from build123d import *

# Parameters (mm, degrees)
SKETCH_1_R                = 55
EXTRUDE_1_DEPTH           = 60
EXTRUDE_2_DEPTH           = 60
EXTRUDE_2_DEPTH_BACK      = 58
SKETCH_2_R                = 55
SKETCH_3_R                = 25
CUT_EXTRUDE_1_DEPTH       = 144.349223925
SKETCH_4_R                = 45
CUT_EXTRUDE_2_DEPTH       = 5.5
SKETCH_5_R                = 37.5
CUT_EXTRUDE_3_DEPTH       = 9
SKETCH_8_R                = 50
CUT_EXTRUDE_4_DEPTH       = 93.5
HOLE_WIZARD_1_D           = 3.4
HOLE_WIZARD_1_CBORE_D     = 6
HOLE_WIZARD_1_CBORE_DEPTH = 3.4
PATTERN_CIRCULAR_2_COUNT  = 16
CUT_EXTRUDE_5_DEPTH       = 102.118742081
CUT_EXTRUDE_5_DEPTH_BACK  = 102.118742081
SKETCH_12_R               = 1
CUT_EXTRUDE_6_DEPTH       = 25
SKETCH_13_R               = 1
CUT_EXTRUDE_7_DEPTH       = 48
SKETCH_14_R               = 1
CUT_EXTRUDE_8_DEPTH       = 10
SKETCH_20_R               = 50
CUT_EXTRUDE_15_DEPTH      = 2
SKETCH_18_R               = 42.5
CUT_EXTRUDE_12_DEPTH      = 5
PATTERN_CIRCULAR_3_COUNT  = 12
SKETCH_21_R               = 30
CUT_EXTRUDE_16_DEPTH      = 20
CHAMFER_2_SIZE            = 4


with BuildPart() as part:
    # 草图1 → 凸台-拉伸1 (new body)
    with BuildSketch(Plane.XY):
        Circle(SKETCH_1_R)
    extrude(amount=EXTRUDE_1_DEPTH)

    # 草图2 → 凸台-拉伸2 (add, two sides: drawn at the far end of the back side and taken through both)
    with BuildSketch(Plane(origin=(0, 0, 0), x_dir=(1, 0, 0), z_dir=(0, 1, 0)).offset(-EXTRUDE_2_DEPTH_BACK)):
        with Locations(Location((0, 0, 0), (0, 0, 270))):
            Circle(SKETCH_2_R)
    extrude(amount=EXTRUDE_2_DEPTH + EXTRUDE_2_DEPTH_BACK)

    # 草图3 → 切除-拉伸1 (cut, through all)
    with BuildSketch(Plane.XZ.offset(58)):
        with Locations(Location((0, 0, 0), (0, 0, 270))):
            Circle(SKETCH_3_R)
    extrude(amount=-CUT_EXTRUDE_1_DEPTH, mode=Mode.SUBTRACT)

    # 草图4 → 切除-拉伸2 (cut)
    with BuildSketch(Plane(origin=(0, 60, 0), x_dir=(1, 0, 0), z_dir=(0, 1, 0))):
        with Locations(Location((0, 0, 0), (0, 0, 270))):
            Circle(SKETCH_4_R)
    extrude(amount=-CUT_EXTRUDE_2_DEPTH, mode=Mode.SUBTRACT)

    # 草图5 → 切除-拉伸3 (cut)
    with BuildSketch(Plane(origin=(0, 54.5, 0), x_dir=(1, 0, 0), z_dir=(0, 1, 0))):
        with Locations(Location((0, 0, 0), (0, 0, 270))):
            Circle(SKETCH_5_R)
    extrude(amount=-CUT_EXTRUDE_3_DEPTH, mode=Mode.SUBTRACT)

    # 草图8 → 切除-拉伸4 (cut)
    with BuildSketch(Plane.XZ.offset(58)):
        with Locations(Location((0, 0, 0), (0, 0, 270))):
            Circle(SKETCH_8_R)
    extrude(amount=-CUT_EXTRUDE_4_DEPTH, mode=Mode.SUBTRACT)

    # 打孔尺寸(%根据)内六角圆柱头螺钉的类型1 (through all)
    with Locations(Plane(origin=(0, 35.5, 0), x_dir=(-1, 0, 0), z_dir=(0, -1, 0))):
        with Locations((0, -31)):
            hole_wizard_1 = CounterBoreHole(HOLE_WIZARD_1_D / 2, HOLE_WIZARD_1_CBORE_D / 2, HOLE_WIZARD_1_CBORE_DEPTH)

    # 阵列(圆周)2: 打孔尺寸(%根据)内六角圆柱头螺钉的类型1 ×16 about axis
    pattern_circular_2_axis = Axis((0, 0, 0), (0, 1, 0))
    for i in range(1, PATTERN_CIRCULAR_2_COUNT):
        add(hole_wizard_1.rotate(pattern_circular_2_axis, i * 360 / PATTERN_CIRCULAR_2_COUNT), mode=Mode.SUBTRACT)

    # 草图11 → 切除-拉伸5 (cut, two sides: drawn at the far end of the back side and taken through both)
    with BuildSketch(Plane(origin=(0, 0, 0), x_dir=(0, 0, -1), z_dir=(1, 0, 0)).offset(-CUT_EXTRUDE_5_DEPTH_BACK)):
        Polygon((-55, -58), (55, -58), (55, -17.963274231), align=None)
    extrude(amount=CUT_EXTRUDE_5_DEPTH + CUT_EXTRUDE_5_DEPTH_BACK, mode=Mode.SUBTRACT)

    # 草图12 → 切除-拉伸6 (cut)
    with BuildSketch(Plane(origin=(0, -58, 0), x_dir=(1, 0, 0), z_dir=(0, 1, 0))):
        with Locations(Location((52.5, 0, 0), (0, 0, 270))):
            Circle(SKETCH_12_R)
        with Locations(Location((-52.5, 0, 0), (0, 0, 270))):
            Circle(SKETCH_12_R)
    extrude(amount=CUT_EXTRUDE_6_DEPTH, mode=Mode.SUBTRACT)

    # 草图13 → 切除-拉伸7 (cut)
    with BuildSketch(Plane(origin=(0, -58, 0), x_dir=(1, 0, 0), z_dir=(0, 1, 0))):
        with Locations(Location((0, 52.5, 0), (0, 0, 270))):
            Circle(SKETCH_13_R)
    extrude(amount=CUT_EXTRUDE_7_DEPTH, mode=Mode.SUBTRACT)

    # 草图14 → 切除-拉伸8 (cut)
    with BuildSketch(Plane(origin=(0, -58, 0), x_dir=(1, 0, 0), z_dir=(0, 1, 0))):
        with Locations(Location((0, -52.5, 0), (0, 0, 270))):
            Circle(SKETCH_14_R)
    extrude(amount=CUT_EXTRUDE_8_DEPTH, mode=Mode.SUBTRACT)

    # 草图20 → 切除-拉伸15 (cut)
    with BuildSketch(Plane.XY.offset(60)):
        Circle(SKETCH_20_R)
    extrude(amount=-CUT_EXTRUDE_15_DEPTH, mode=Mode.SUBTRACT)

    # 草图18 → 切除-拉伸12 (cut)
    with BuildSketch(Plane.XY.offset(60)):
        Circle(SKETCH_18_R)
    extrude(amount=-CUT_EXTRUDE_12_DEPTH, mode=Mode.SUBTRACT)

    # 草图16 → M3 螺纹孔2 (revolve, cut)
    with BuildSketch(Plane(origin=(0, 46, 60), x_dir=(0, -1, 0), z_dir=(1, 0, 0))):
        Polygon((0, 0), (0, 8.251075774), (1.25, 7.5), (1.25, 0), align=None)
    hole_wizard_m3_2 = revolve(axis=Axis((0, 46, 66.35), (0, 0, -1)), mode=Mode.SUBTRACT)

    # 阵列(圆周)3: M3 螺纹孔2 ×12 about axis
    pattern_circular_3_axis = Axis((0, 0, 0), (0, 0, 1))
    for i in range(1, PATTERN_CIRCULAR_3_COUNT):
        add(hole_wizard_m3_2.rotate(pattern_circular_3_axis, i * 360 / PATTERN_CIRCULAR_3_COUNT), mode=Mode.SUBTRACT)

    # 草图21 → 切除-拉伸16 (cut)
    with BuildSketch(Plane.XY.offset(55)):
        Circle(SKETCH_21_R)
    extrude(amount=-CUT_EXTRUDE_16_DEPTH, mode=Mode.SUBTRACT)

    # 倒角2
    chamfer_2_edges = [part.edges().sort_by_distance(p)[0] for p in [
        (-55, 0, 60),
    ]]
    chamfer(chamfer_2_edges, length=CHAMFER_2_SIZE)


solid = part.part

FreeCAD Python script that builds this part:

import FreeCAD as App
import Part
import Sketcher

V = App.Vector
Q = App.Units.Quantity


def edges_at(feature, points):
    """Names of the edges that pass closest to the given points."""
    edges = feature.Shape.Edges
    near = lambda p: min(range(len(edges)), key=lambda i: edges[i].distToShape(Part.Vertex(*p))[0])
    return sorted({f"Edge{near(p) + 1}" for p in points})

doc = App.newDocument("Part")
body = doc.addObject("PartDesign::Body", "Body")

sketch1 = body.newObject("Sketcher::SketchObject", "Sketch")
sketch1.AttachmentSupport = (doc.getObject("XY_Plane"), [""])
sketch1.MapMode = "FlatFace"
sketch1.addGeometry(Part.Circle(V(0, 0, 0), V(0, 0, 1), 55), False)
sketch1.addConstraint(Sketcher.Constraint("Coincident", 0, 3, -1, 1))
sketch1.addConstraint(Sketcher.Constraint("Diameter", 0, Q("110 mm")))
pad1 = body.newObject("PartDesign::Pad", "Pad")
pad1.Profile = sketch1
pad1.Length = 60

sketch2 = body.newObject("Sketcher::SketchObject", "Sketch001")
sketch2.AttachmentSupport = (doc.getObject("XZ_Plane"), [""])
sketch2.MapMode = "FlatFace"
sketch2.addGeometry(Part.Circle(V(0, 0, 0), V(0, 0, 1), 55), False)
sketch2.addConstraint(Sketcher.Constraint("Coincident", 0, 3, -1, 1))
sketch2.addConstraint(Sketcher.Constraint("Diameter", 0, Q("110 mm")))
pad2 = body.newObject("PartDesign::Pad", "Pad001")
pad2.Profile = sketch2
pad2.Type = "TwoLengths"
pad2.Length = 60
pad2.Length2 = 58
pad2.Reversed = True

sketch3 = body.newObject("Sketcher::SketchObject", "Sketch002")
sketch3.AttachmentSupport = (doc.getObject("XZ_Plane"), [""])
sketch3.MapMode = "FlatFace"
sketch3.AttachmentOffset = App.Placement(V(0, 0, 58), App.Rotation())
sketch3.addGeometry(Part.Circle(V(0, 0, 0), V(0, 0, 1), 25), False)
sketch3.addConstraint(Sketcher.Constraint("Coincident", 0, 3, -1, 1))
sketch3.addConstraint(Sketcher.Constraint("Diameter", 0, Q("50 mm")))
pocket1 = body.newObject("PartDesign::Pocket", "Pocket")
pocket1.Profile = sketch3
pocket1.Type = "ThroughAll"

sketch4 = body.newObject("Sketcher::SketchObject", "Sketch003")
sketch4.AttachmentSupport = (doc.getObject("XZ_Plane"), [""])
sketch4.MapMode = "FlatFace"
sketch4.AttachmentOffset = App.Placement(V(0, 0, -60), App.Rotation())
sketch4.addGeometry(Part.Circle(V(0, 0, 0), V(0, 0, 1), 45), False)
sketch4.addConstraint(Sketcher.Constraint("Coincident", 0, 3, -1, 1))
sketch4.addConstraint(Sketcher.Constraint("Diameter", 0, Q("90 mm")))
pocket2 = body.newObject("PartDesign::Pocket", "Pocket001")
pocket2.Profile = sketch4
pocket2.Length = 5.5
pocket2.Reversed = True

sketch5 = body.newObject("Sketcher::SketchObject", "Sketch004")
sketch5.AttachmentSupport = (doc.getObject("XZ_Plane"), [""])
sketch5.MapMode = "FlatFace"
sketch5.AttachmentOffset = App.Placement(V(0, 0, -54.5), App.Rotation())
sketch5.addGeometry(Part.Circle(V(0, 0, 0), V(0, 0, 1), 38), False)
sketch5.addConstraint(Sketcher.Constraint("Coincident", 0, 3, -1, 1))
sketch5.addConstraint(Sketcher.Constraint("Diameter", 0, Q("75 mm")))
pocket3 = body.newObject("PartDesign::Pocket", "Pocket002")
pocket3.Profile = sketch5
pocket3.Length = 9
pocket3.Reversed = True

sketch6 = body.newObject("Sketcher::SketchObject", "Sketch005")
sketch6.AttachmentSupport = (doc.getObject("XZ_Plane"), [""])
sketch6.MapMode = "FlatFace"
sketch6.AttachmentOffset = App.Placement(V(0, 0, 58), App.Rotation())
sketch6.addGeometry(Part.Circle(V(0, 0, 0), V(0, 0, 1), 50), False)
sketch6.addConstraint(Sketcher.Constraint("Coincident", 0, 3, -1, 1))
sketch6.addConstraint(Sketcher.Constraint("Diameter", 0, Q("100 mm")))
pocket4 = body.newObject("PartDesign::Pocket", "Pocket003")
pocket4.Profile = sketch6
pocket4.Length = 93.5

sketch7 = body.newObject("Sketcher::SketchObject", "Sketch006")
sketch7.AttachmentSupport = (doc.getObject("XZ_Plane"), [""])
sketch7.MapMode = "FlatFace"
sketch7.AttachmentOffset = App.Placement(V(0, 0, -35.5), App.Rotation())
sketch7.addGeometry(Part.Circle(V(0, 31, 0), V(0, 0, 1), 1.7), False)
sketch7.addConstraint(Sketcher.Constraint("PointOnObject", 0, 3, -2))
sketch7.addConstraint(Sketcher.Constraint("Diameter", 0, Q("3.4 mm")))
sketch7.addConstraint(Sketcher.Constraint("DistanceY", -1, 1, 0, 3, Q("31 mm")))
doc.recompute()
hole = body.newObject("PartDesign::Hole", "Hole")
hole.Profile = sketch7
hole.ThreadType = "None"
hole.Diameter = 3.4
hole.DepthType = "ThroughAll"
hole.HoleCutType = "Counterbore"
hole.HoleCutDiameter = 6
hole.HoleCutDepth = 3.4
doc.recompute()

polarpattern = body.newObject("PartDesign::PolarPattern", "PolarPattern")
polarpattern.Originals = [hole]
polarpattern.Axis = (doc.getObject("Y_Axis"), [""])
polarpattern.Angle = 360
polarpattern.Occurrences = 16
body.Tip = polarpattern

sketch8 = body.newObject("Sketcher::SketchObject", "Sketch007")
sketch8.AttachmentSupport = (doc.getObject("YZ_Plane"), [""])
sketch8.MapMode = "FlatFace"
sketch8.addGeometry(Part.LineSegment(V(-58, 55, 0), V(-58, -55, 0)), False)
sketch8.addGeometry(Part.LineSegment(V(-58, -55, 0), V(-18, -55, 0)), False)
sketch8.addGeometry(Part.LineSegment(V(-18, -55, 0), V(-58, 55, 0)), False)
sketch8.addConstraint(Sketcher.Constraint("Coincident", 0, 2, 1, 1))
sketch8.addConstraint(Sketcher.Constraint("Coincident", 1, 2, 2, 1))
sketch8.addConstraint(Sketcher.Constraint("Coincident", 2, 2, 0, 1))
sketch8.addConstraint(Sketcher.Constraint("Vertical", 0))
sketch8.addConstraint(Sketcher.Constraint("Horizontal", 1))
sketch8.addConstraint(Sketcher.Constraint("DistanceY", 0, 2, 0, 1, Q("110 mm")))
sketch8.addConstraint(Sketcher.Constraint("Angle", 2, Q("110 deg")))
sketch8.addConstraint(Sketcher.Constraint("DistanceX", 0, 2, -1, 1, Q("58 mm")))
sketch8.addConstraint(Sketcher.Constraint("DistanceY", 0, 2, -1, 1, Q("55 mm")))
pocket5 = body.newObject("PartDesign::Pocket", "Pocket004")
pocket5.Profile = sketch8
pocket5.Type = "ThroughAll"
pocket5.Midplane = True

sketch9 = body.newObject("Sketcher::SketchObject", "Sketch008")
sketch9.AttachmentSupport = (doc.getObject("XZ_Plane"), [""])
sketch9.MapMode = "FlatFace"
sketch9.AttachmentOffset = App.Placement(V(0, 0, 58), App.Rotation())
sketch9.addGeometry(Part.Circle(V(52.5, 0, 0), V(0, 0, 1), 1), False)
sketch9.addGeometry(Part.Circle(V(-52.5, 0, 0), V(0, 0, 1), 1), False)
sketch9.addConstraint(Sketcher.Constraint("Equal", 0, 1))
sketch9.addConstraint(Sketcher.Constraint("Symmetric", 0, 3, 1, 3, -1, 1))
sketch9.addConstraint(Sketcher.Constraint("PointOnObject", 0, 3, -1))
sketch9.addConstraint(Sketcher.Constraint("Diameter", 0, Q("2 mm")))
sketch9.addConstraint(Sketcher.Constraint("DistanceX", 1, 3, 0, 3, Q("105 mm")))
pocket6 = body.newObject("PartDesign::Pocket", "Pocket005")
pocket6.Profile = sketch9
pocket6.Length = 25

sketch10 = body.newObject("Sketcher::SketchObject", "Sketch009")
sketch10.AttachmentSupport = (doc.getObject("XZ_Plane"), [""])
sketch10.MapMode = "FlatFace"
sketch10.AttachmentOffset = App.Placement(V(0, 0, 58), App.Rotation())
sketch10.addGeometry(Part.Circle(V(0, -52.5, 0), V(0, 0, 1), 1), False)
sketch10.addConstraint(Sketcher.Constraint("PointOnObject", 0, 3, -2))
sketch10.addConstraint(Sketcher.Constraint("Diameter", 0, Q("2 mm")))
sketch10.addConstraint(Sketcher.Constraint("DistanceY", 0, 3, -1, 1, Q("52.5 mm")))
pocket7 = body.newObject("PartDesign::Pocket", "Pocket006")
pocket7.Profile = sketch10
pocket7.Length = 48

sketch11 = body.newObject("Sketcher::SketchObject", "Sketch010")
sketch11.AttachmentSupport = (doc.getObject("XZ_Plane"), [""])
sketch11.MapMode = "FlatFace"
sketch11.AttachmentOffset = App.Placement(V(0, 0, 58), App.Rotation())
sketch11.addGeometry(Part.Circle(V(0, 52.5, 0), V(0, 0, 1), 1), False)
sketch11.addConstraint(Sketcher.Constraint("PointOnObject", 0, 3, -2))
sketch11.addConstraint(Sketcher.Constraint("Diameter", 0, Q("2 mm")))
sketch11.addConstraint(Sketcher.Constraint("DistanceY", -1, 1, 0, 3, Q("52.5 mm")))
pocket8 = body.newObject("PartDesign::Pocket", "Pocket007")
pocket8.Profile = sketch11
pocket8.Length = 10

sketch12 = body.newObject("Sketcher::SketchObject", "Sketch011")
sketch12.AttachmentSupport = (doc.getObject("XY_Plane"), [""])
sketch12.MapMode = "FlatFace"
sketch12.AttachmentOffset = App.Placement(V(0, 0, 60), App.Rotation())
sketch12.addGeometry(Part.Circle(V(0, 0, 0), V(0, 0, 1), 50), False)
sketch12.addConstraint(Sketcher.Constraint("Coincident", 0, 3, -1, 1))
sketch12.addConstraint(Sketcher.Constraint("Diameter", 0, Q("100 mm")))
pocket9 = body.newObject("PartDesign::Pocket", "Pocket008")
pocket9.Profile = sketch12
pocket9.Length = 2

sketch13 = body.newObject("Sketcher::SketchObject", "Sketch012")
sketch13.AttachmentSupport = (doc.getObject("XY_Plane"), [""])
sketch13.MapMode = "FlatFace"
sketch13.AttachmentOffset = App.Placement(V(0, 0, 60), App.Rotation())
sketch13.addGeometry(Part.Circle(V(0, 0, 0), V(0, 0, 1), 42), False)
sketch13.addConstraint(Sketcher.Constraint("Coincident", 0, 3, -1, 1))
sketch13.addConstraint(Sketcher.Constraint("Diameter", 0, Q("85 mm")))
pocket10 = body.newObject("PartDesign::Pocket", "Pocket009")
pocket10.Profile = sketch13
pocket10.Length = 5

sketch14 = body.newObject("Sketcher::SketchObject", "Sketch013")
sketch14.AttachmentSupport = (doc.getObject("YZ_Plane"), [""])
sketch14.MapMode = "FlatFace"
sketch14.addGeometry(Part.LineSegment(V(46, 51.7, 0), V(46, 60, 0)), False)
sketch14.addGeometry(Part.LineSegment(V(46, 60, 0), V(44.8, 60, 0)), False)
sketch14.addGeometry(Part.LineSegment(V(44.8, 60, 0), V(44.8, 52.5, 0)), False)
sketch14.addGeometry(Part.LineSegment(V(44.8, 52.5, 0), V(46, 51.7, 0)), False)
sketch14.addGeometry(Part.LineSegment(V(46, 60, 0), V(46, 51.7, 0)), True)
sketch14.addConstraint(Sketcher.Constraint("Coincident", 0, 2, 1, 1))
sketch14.addConstraint(Sketcher.Constraint("Coincident", 1, 2, 2, 1))
sketch14.addConstraint(Sketcher.Constraint("Coincident", 2, 2, 3, 1))
sketch14.addConstraint(Sketcher.Constraint("Coincident", 3, 2, 0, 1))
sketch14.addConstraint(Sketcher.Constraint("Vertical", 0))
sketch14.addConstraint(Sketcher.Constraint("Horizontal", 1))
sketch14.addConstraint(Sketcher.Constraint("Vertical", 2))
sketch14.addConstraint(Sketcher.Constraint("Vertical", 4))
sketch14.addConstraint(Sketcher.Constraint("Coincident", 4, 1, 0, 2))
sketch14.addConstraint(Sketcher.Constraint("Equal", 0, 4))
sketch14.addConstraint(Sketcher.Constraint("Angle", 3, Q("-31 deg")))
sketch14.addConstraint(Sketcher.Constraint("DistanceY", 2, 2, 2, 1, Q("7.5 mm")))
sketch14.addConstraint(Sketcher.Constraint("DistanceX", -1, 1, 0, 2, Q("46 mm")))
sketch14.addConstraint(Sketcher.Constraint("DistanceY", -1, 1, 0, 2, Q("60 mm")))
sketch14.addConstraint(Sketcher.Constraint("DistanceX", 1, 2, 1, 1, Q("1.25 mm")))
groove = body.newObject("PartDesign::Groove", "Groove")
groove.Profile = sketch14
groove.ReferenceAxis = (sketch14, ["Axis0"])
groove.Angle = 360
doc.recompute()

polarpattern2 = body.newObject("PartDesign::PolarPattern", "PolarPattern001")
polarpattern2.Originals = [groove]
polarpattern2.Axis = (doc.getObject("Z_Axis"), [""])
polarpattern2.Angle = 360
polarpattern2.Occurrences = 12
body.Tip = polarpattern2

sketch15 = body.newObject("Sketcher::SketchObject", "Sketch014")
sketch15.AttachmentSupport = (doc.getObject("XY_Plane"), [""])
sketch15.MapMode = "FlatFace"
sketch15.AttachmentOffset = App.Placement(V(0, 0, 55), App.Rotation())
sketch15.addGeometry(Part.Circle(V(0, 0, 0), V(0, 0, 1), 30), False)
sketch15.addConstraint(Sketcher.Constraint("Coincident", 0, 3, -1, 1))
sketch15.addConstraint(Sketcher.Constraint("Diameter", 0, Q("60 mm")))
pocket11 = body.newObject("PartDesign::Pocket", "Pocket010")
pocket11.Profile = sketch15
pocket11.Length = 20
doc.recompute()

chamfer = body.newObject("PartDesign::Chamfer", "Chamfer")
chamfer.Base = (pocket11, edges_at(pocket11, [(-55, 0, 60)]))
chamfer.Size = 4

doc.recompute()
